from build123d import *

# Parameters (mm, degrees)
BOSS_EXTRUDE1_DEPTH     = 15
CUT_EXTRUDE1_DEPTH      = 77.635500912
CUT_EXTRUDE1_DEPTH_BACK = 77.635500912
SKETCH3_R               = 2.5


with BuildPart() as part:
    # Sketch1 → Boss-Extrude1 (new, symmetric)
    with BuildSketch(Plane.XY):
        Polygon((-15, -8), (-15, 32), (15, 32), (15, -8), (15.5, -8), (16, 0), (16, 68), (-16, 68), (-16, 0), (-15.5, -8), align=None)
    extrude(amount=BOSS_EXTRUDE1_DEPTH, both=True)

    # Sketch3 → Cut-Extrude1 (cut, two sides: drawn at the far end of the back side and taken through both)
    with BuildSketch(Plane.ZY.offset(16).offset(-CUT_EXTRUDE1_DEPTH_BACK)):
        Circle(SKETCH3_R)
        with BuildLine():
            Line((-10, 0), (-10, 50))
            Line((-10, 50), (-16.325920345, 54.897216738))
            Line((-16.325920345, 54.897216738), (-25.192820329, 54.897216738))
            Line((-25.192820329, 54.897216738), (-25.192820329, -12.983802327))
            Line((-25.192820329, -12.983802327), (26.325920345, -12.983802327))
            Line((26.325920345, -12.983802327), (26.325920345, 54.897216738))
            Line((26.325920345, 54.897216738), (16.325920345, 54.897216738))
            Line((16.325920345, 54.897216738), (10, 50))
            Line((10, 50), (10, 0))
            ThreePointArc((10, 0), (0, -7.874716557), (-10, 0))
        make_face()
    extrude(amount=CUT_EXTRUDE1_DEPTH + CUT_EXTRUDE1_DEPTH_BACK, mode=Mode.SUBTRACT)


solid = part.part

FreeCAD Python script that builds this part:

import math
import FreeCAD as App
import Part
import Sketcher
from FreeCAD import Vector

doc = App.newDocument("Part")
body = doc.addObject("PartDesign::Body", "Body")

# Sketch on XY plane
sketch1 = doc.addObject("Sketcher::SketchObject", "Sketch")
body.addObject(sketch1)
sketch1.AttachmentSupport = (doc.XY_Plane, [""])
sketch1.MapMode = "FlatFace"
sketch1.addGeometry(Part.LineSegment(Vector(-15, -8, 0), Vector(-15, 32, 0)), False)
sketch1.addGeometry(Part.LineSegment(Vector(-15, 32, 0), Vector(15, 32, 0)), False)
sketch1.addGeometry(Part.LineSegment(Vector(15, 32, 0), Vector(15, -8, 0)), False)
sketch1.addGeometry(Part.LineSegment(Vector(15, -8, 0), Vector(15.5, -8, 0)), False)
sketch1.addGeometry(Part.LineSegment(Vector(15.5, -8, 0), Vector(16, 0, 0)), False)
sketch1.addGeometry(Part.LineSegment(Vector(16, 0, 0), Vector(16, 68, 0)), False)
sketch1.addGeometry(Part.LineSegment(Vector(16, 68, 0), Vector(-16, 68, 0)), False)
sketch1.addGeometry(Part.LineSegment(Vector(-16, 68, 0), Vector(-16, 0, 0)), False)
sketch1.addGeometry(Part.LineSegment(Vector(-16, 0, 0), Vector(-15.5, -8, 0)), False)
sketch1.addGeometry(Part.LineSegment(Vector(-15.5, -8, 0), Vector(-15, -8, 0)), False)
sketch1.addConstraint(Sketcher.Constraint("Coincident", 0, 2, 1, 1))
sketch1.addConstraint(Sketcher.Constraint("Coincident", 1, 2, 2, 1))
sketch1.addConstraint(Sketcher.Constraint("Coincident", 2, 2, 3, 1))
sketch1.addConstraint(Sketcher.Constraint("Coincident", 3, 2, 4, 1))
sketch1.addConstraint(Sketcher.Constraint("Coincident", 4, 2, 5, 1))
sketch1.addConstraint(Sketcher.Constraint("Coincident", 5, 2, 6, 1))
sketch1.addConstraint(Sketcher.Constraint("Coincident", 6, 2, 7, 1))
sketch1.addConstraint(Sketcher.Constraint("Coincident", 7, 2, 8, 1))
sketch1.addConstraint(Sketcher.Constraint("Coincident", 8, 2, 9, 1))
sketch1.addConstraint(Sketcher.Constraint("Coincident", 9, 2, 0, 1))
sketch1.addConstraint(Sketcher.Constraint("Vertical", 0))
sketch1.addConstraint(Sketcher.Constraint("Horizontal", 1))
sketch1.addConstraint(Sketcher.Constraint("Vertical", 2))
sketch1.addConstraint(Sketcher.Constraint("Horizontal", 3))
sketch1.addConstraint(Sketcher.Constraint("Vertical", 5))
sketch1.addConstraint(Sketcher.Constraint("Horizontal", 6))
sketch1.addConstraint(Sketcher.Constraint("Vertical", 7))
sketch1.addConstraint(Sketcher.Constraint("Horizontal", 9))
sketch1.addConstraint(Sketcher.Constraint("Symmetric", 4, 2, 7, 2, -1, 1))
sketch1.addConstraint(Sketcher.Constraint("Symmetric", 3, 2, 8, 2, -2))
sketch1.addConstraint(Sketcher.Constraint("PointOnObject", 4, 2, -1))
sketch1.addConstraint(Sketcher.Constraint("Equal", 3, 9))
sketch1.addConstraint(Sketcher.Constraint("DistanceX", 1, 1, 1, 2, 30.0))
sketch1.addConstraint(Sketcher.Constraint("DistanceX", 6, 2, 6, 1, 32.0))
sketch1.addConstraint(Sketcher.Constraint("DistanceY", 0, 1, 0, 2, 40.0))
sketch1.addConstraint(Sketcher.Constraint("DistanceY", 5, 1, 5, 2, 68.0))
sketch1.addConstraint(Sketcher.Constraint("DistanceX", 3, 1, 3, 2, 0.5))
sketch1.addConstraint(Sketcher.Constraint("DistanceY", -1, 1, 0, 2, 32.0))
pad1 = doc.addObject("PartDesign::Pad", "Pad")
body.addObject(pad1)
pad1.Profile = sketch1
pad1.Length = 30
pad1.Midplane = True

# Sketch on YZ plane
sketch2 = doc.addObject("Sketcher::SketchObject", "Sketch001")
body.addObject(sketch2)
sketch2.AttachmentSupport = (doc.YZ_Plane, [""])
sketch2.MapMode = "FlatFace"
sketch2.AttachmentOffset = App.Placement(Vector(0, 0, -16), App.Rotation())
sketch2.addGeometry(Part.Circle(Vector(0, 0, 0), Vector(0, 0, 1), 2.5), False)
sketch2.addGeometry(Part.LineSegment(Vector(0, -10, 0), Vector(50, -10, 0)), False)
sketch2.addGeometry(Part.LineSegment(Vector(50, -10, 0), Vector(54.897217, -16.32592, 0)), False)
sketch2.addGeometry(Part.LineSegment(Vector(54.897217, -16.32592, 0), Vector(54.897217, -25.19282, 0)), False)
sketch2.addGeometry(Part.LineSegment(Vector(54.897217, -25.19282, 0), Vector(-12.983802, -25.19282, 0)), False)
sketch2.addGeometry(Part.LineSegment(Vector(-12.983802, -25.19282, 0), Vector(-12.983802, 26.32592, 0)), False)
sketch2.addGeometry(Part.LineSegment(Vector(-12.983802, 26.32592, 0), Vector(54.897217, 26.32592, 0)), False)
sketch2.addGeometry(Part.LineSegment(Vector(54.897217, 26.32592, 0), Vector(54.897217, 16.32592, 0)), False)
sketch2.addGeometry(Part.LineSegment(Vector(54.897217, 16.32592, 0), Vector(50, 10, 0)), False)
sketch2.addGeometry(Part.LineSegment(Vector(50, 10, 0), Vector(0, 10, 0)), False)
sketch2.addGeometry(Part.ArcOfCircle(Part.Circle(Vector(2.412077, 0, 0), Vector(0, 0, 1), 10.286793), math.radians(103.561141), math.radians(256.438859)), False)
sketch2.addConstraint(Sketcher.Constraint("Coincident", 1, 2, 2, 1))
sketch2.addConstraint(Sketcher.Constraint("Coincident", 2, 2, 3, 1))
sketch2.addConstraint(Sketcher.Constraint("Coincident", 3, 2, 4, 1))
sketch2.addConstraint(Sketcher.Constraint("Coincident", 4, 2, 5, 1))
sketch2.addConstraint(Sketcher.Constraint("Coincident", 5, 2, 6, 1))
sketch2.addConstraint(Sketcher.Constraint("Coincident", 6, 2, 7, 1))
sketch2.addConstraint(Sketcher.Constraint("Coincident", 7, 2, 8, 1))
sketch2.addConstraint(Sketcher.Constraint("Coincident", 8, 2, 9, 1))
sketch2.addConstraint(Sketcher.Constraint("Coincident", 9, 2, 10, 1))
sketch2.addConstraint(Sketcher.Constraint("Coincident", 10, 2, 1, 1))
sketch2.addConstraint(Sketcher.Constraint("Horizontal", 1))
sketch2.addConstraint(Sketcher.Constraint("Vertical", 3))
sketch2.addConstraint(Sketcher.Constraint("Horizontal", 4))
sketch2.addConstraint(Sketcher.Constraint("Vertical", 5))
sketch2.addConstraint(Sketcher.Constraint("Horizontal", 6))
sketch2.addConstraint(Sketcher.Constraint("Vertical", 7))
sketch2.addConstraint(Sketcher.Constraint("Horizontal", 9))
sketch2.addConstraint(Sketcher.Constraint("Coincident", 0, 3, -1, 1))
sketch2.addConstraint(Sketcher.Constraint("Symmetric", 9, 2, 10, 2, -1, 1))
sketch2.addConstraint(Sketcher.Constraint("Symmetric", 2, 2, 7, 2, -1))
sketch2.addConstraint(Sketcher.Constraint("PointOnObject", 10, 3, -1))
sketch2.addConstraint(Sketcher.Constraint("Vertical", 1, 2, 8, 2))
sketch2.addConstraint(Sketcher.Constraint("Diameter", 0, 5.0))
sketch2.addConstraint(Sketcher.Constraint("DistanceX", 1, 1, 1, 2, 50.0))
sketch2.addConstraint(Sketcher.Constraint("DistanceY", 7, 2, 7, 1, 10.0))
sketch2.addConstraint(Sketcher.Constraint("Distance", 2, 8.0))
sketch2.addConstraint(Sketcher.Constraint("DistanceY", 1, 2, -1, 1, 10.0))
sketch2.addConstraint(Sketcher.Constraint("DistanceY", 3, 2, 3, 1, 8.8669))
sketch2.addConstraint(Sketcher.Constraint("Radius", 10, 10.286793))
sketch2.addConstraint(Sketcher.Constraint("DistanceX", 4, 2, 4, 1, 67.881019))
sketch2.addConstraint(Sketcher.Constraint("DistanceY", 5, 1, 5, 2, 51.518741))
pocket1 = doc.addObject("PartDesign::Pocket", "Pocket")
body.addObject(pocket1)
pocket1.Profile = sketch2
pocket1.Type = "ThroughAll"
pocket1.Midplane = True

doc.recompute()
